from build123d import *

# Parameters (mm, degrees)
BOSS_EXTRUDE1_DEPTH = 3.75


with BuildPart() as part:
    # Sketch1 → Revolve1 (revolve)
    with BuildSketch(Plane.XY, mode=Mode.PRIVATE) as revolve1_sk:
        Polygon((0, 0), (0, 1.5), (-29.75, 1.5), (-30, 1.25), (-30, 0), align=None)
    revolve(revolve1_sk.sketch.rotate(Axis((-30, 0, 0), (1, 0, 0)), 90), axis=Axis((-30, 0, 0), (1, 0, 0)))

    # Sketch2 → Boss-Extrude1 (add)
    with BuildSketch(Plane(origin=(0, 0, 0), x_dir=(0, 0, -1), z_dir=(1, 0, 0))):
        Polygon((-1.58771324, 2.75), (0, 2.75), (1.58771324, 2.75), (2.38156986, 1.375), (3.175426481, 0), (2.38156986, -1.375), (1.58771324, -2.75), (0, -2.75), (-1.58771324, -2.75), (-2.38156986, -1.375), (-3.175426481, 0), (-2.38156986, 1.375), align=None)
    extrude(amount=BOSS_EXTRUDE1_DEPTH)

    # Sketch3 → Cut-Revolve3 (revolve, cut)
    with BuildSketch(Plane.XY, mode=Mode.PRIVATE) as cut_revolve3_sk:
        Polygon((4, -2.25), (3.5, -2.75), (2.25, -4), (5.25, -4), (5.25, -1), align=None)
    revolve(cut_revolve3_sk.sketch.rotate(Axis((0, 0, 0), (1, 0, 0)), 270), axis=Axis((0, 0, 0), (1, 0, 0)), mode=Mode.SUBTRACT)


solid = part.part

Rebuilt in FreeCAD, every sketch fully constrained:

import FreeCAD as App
import Part
import Sketcher
from FreeCAD import Vector
Q = App.Units.Quantity


def add_polygon(sketch, points):
    """Adds a closed chain of lines whose ends are joined by coincident constraints."""
    first, n = sketch.GeometryCount, len(points)
    for a, b in zip(points, points[1:] + points[:1]):
        sketch.addGeometry(Part.LineSegment(App.Vector(*a, 0), App.Vector(*b, 0)), False)
    for i in range(n):
        sketch.addConstraint(Sketcher.Constraint("Coincident", first + i, 2, first + (i + 1) % n, 1))

doc = App.newDocument("Part")
body = doc.addObject("PartDesign::Body", "Body")

# Sketch on XY plane
sketch1 = body.newObject("Sketcher::SketchObject", "Sketch")
sketch1.AttachmentSupport = (doc.getObject("XY_Plane"), [""])
sketch1.MapMode = "FlatFace"
add_polygon(sketch1, [(0, 0), (0, 1.5), (-29.75, 1.5), (-30, 1.25), (-30, 0)])  # lines 0-4
sketch1.addConstraint(Sketcher.Constraint("Vertical", 0))
sketch1.addConstraint(Sketcher.Constraint("Horizontal", 1))
sketch1.addConstraint(Sketcher.Constraint("Vertical", 3))
sketch1.addConstraint(Sketcher.Constraint("Horizontal", 4))
sketch1.addConstraint(Sketcher.Constraint("Coincident", 4, 2, -1, 1))
sketch1.addConstraint(Sketcher.Constraint("DistanceX", 4, 1, 4, 2, 30.0))
sketch1.addConstraint(Sketcher.Constraint("Angle", 2, Q("-135 deg")))
sketch1.addConstraint(Sketcher.Constraint("DistanceY", 0, 1, 0, 2, 1.5))
sketch1.addConstraint(Sketcher.Constraint("DistanceX", 1, 2, 1, 1, 29.75))
revolution = body.newObject("PartDesign::Revolution", "Revolution")
revolution.Profile = sketch1
revolution.ReferenceAxis = (sketch1, ["H_Axis"])
revolution.Angle = 360

# Sketch on YZ plane
sketch2 = body.newObject("Sketcher::SketchObject", "Sketch001")
sketch2.AttachmentSupport = (doc.getObject("YZ_Plane"), [""])
sketch2.MapMode = "FlatFace"
add_polygon(sketch2, [(2.75, -1.587713), (2.75, 1.587713), (1.375, 2.38157), (0, 3.175426), (-1.375, 2.38157), (-2.75, 1.587713), (-2.75, -1.587713), (-1.375, -2.38157), (0, -3.175426), (1.375, -2.38157)])  # lines 0-9
sketch2.addConstraint(Sketcher.Constraint("Vertical", 0))
sketch2.addConstraint(Sketcher.Constraint("Vertical", 5))
sketch2.addConstraint(Sketcher.Constraint("Symmetric", 0, 2, 5, 2, -1, 1))
sketch2.addConstraint(Sketcher.Constraint("Symmetric", 1, 2, 6, 2, -1, 1))
sketch2.addConstraint(Sketcher.Constraint("Symmetric", 2, 2, 7, 2, -1, 1))
sketch2.addConstraint(Sketcher.Constraint("Symmetric", 3, 2, 8, 2, -1, 1))
sketch2.addConstraint(Sketcher.Constraint("Symmetric", 1, 2, 3, 2, -2))
sketch2.addConstraint(Sketcher.Constraint("PointOnObject", 2, 2, -2))
sketch2.addConstraint(Sketcher.Constraint("Parallel", 1, 2))
sketch2.addConstraint(Sketcher.Constraint("Parallel", 3, 4))
sketch2.addConstraint(Sketcher.Constraint("Parallel", 8, 9))
sketch2.addConstraint(Sketcher.Constraint("Equal", 1, 2))
sketch2.addConstraint(Sketcher.Constraint("Angle", 1, Q("150 deg")))
sketch2.addConstraint(Sketcher.Constraint("DistanceX", 4, 2, 0, 2, 5.5))
sketch2.addConstraint(Sketcher.Constraint("DistanceY", 0, 1, 0, 2, 3.175426))
pad1 = body.newObject("PartDesign::Pad", "Pad")
pad1.Profile = sketch2
pad1.Length = 3.75

# Sketch on XY plane
sketch3 = body.newObject("Sketcher::SketchObject", "Sketch002")
sketch3.AttachmentSupport = (doc.getObject("XY_Plane"), [""])
sketch3.MapMode = "FlatFace"
add_polygon(sketch3, [(2.25, -4), (5.25, -4), (5.25, -1)])  # lines 0-2
sketch3.addConstraint(Sketcher.Constraint("Horizontal", 0))
sketch3.addConstraint(Sketcher.Constraint("Vertical", 1))
sketch3.addConstraint(Sketcher.Constraint("Equal", 0, 1))
sketch3.addConstraint(Sketcher.Constraint("DistanceX", 0, 1, 0, 2, 3.0))
sketch3.addConstraint(Sketcher.Constraint("DistanceY", 0, 2, -1, 1, 4.0))
sketch3.addConstraint(Sketcher.Constraint("DistanceX", -1, 1, 0, 2, 5.25))
groove = body.newObject("PartDesign::Groove", "Groove")
groove.Profile = sketch3
groove.ReferenceAxis = (sketch3, ["H_Axis"])
groove.Angle = 360

doc.recompute()
